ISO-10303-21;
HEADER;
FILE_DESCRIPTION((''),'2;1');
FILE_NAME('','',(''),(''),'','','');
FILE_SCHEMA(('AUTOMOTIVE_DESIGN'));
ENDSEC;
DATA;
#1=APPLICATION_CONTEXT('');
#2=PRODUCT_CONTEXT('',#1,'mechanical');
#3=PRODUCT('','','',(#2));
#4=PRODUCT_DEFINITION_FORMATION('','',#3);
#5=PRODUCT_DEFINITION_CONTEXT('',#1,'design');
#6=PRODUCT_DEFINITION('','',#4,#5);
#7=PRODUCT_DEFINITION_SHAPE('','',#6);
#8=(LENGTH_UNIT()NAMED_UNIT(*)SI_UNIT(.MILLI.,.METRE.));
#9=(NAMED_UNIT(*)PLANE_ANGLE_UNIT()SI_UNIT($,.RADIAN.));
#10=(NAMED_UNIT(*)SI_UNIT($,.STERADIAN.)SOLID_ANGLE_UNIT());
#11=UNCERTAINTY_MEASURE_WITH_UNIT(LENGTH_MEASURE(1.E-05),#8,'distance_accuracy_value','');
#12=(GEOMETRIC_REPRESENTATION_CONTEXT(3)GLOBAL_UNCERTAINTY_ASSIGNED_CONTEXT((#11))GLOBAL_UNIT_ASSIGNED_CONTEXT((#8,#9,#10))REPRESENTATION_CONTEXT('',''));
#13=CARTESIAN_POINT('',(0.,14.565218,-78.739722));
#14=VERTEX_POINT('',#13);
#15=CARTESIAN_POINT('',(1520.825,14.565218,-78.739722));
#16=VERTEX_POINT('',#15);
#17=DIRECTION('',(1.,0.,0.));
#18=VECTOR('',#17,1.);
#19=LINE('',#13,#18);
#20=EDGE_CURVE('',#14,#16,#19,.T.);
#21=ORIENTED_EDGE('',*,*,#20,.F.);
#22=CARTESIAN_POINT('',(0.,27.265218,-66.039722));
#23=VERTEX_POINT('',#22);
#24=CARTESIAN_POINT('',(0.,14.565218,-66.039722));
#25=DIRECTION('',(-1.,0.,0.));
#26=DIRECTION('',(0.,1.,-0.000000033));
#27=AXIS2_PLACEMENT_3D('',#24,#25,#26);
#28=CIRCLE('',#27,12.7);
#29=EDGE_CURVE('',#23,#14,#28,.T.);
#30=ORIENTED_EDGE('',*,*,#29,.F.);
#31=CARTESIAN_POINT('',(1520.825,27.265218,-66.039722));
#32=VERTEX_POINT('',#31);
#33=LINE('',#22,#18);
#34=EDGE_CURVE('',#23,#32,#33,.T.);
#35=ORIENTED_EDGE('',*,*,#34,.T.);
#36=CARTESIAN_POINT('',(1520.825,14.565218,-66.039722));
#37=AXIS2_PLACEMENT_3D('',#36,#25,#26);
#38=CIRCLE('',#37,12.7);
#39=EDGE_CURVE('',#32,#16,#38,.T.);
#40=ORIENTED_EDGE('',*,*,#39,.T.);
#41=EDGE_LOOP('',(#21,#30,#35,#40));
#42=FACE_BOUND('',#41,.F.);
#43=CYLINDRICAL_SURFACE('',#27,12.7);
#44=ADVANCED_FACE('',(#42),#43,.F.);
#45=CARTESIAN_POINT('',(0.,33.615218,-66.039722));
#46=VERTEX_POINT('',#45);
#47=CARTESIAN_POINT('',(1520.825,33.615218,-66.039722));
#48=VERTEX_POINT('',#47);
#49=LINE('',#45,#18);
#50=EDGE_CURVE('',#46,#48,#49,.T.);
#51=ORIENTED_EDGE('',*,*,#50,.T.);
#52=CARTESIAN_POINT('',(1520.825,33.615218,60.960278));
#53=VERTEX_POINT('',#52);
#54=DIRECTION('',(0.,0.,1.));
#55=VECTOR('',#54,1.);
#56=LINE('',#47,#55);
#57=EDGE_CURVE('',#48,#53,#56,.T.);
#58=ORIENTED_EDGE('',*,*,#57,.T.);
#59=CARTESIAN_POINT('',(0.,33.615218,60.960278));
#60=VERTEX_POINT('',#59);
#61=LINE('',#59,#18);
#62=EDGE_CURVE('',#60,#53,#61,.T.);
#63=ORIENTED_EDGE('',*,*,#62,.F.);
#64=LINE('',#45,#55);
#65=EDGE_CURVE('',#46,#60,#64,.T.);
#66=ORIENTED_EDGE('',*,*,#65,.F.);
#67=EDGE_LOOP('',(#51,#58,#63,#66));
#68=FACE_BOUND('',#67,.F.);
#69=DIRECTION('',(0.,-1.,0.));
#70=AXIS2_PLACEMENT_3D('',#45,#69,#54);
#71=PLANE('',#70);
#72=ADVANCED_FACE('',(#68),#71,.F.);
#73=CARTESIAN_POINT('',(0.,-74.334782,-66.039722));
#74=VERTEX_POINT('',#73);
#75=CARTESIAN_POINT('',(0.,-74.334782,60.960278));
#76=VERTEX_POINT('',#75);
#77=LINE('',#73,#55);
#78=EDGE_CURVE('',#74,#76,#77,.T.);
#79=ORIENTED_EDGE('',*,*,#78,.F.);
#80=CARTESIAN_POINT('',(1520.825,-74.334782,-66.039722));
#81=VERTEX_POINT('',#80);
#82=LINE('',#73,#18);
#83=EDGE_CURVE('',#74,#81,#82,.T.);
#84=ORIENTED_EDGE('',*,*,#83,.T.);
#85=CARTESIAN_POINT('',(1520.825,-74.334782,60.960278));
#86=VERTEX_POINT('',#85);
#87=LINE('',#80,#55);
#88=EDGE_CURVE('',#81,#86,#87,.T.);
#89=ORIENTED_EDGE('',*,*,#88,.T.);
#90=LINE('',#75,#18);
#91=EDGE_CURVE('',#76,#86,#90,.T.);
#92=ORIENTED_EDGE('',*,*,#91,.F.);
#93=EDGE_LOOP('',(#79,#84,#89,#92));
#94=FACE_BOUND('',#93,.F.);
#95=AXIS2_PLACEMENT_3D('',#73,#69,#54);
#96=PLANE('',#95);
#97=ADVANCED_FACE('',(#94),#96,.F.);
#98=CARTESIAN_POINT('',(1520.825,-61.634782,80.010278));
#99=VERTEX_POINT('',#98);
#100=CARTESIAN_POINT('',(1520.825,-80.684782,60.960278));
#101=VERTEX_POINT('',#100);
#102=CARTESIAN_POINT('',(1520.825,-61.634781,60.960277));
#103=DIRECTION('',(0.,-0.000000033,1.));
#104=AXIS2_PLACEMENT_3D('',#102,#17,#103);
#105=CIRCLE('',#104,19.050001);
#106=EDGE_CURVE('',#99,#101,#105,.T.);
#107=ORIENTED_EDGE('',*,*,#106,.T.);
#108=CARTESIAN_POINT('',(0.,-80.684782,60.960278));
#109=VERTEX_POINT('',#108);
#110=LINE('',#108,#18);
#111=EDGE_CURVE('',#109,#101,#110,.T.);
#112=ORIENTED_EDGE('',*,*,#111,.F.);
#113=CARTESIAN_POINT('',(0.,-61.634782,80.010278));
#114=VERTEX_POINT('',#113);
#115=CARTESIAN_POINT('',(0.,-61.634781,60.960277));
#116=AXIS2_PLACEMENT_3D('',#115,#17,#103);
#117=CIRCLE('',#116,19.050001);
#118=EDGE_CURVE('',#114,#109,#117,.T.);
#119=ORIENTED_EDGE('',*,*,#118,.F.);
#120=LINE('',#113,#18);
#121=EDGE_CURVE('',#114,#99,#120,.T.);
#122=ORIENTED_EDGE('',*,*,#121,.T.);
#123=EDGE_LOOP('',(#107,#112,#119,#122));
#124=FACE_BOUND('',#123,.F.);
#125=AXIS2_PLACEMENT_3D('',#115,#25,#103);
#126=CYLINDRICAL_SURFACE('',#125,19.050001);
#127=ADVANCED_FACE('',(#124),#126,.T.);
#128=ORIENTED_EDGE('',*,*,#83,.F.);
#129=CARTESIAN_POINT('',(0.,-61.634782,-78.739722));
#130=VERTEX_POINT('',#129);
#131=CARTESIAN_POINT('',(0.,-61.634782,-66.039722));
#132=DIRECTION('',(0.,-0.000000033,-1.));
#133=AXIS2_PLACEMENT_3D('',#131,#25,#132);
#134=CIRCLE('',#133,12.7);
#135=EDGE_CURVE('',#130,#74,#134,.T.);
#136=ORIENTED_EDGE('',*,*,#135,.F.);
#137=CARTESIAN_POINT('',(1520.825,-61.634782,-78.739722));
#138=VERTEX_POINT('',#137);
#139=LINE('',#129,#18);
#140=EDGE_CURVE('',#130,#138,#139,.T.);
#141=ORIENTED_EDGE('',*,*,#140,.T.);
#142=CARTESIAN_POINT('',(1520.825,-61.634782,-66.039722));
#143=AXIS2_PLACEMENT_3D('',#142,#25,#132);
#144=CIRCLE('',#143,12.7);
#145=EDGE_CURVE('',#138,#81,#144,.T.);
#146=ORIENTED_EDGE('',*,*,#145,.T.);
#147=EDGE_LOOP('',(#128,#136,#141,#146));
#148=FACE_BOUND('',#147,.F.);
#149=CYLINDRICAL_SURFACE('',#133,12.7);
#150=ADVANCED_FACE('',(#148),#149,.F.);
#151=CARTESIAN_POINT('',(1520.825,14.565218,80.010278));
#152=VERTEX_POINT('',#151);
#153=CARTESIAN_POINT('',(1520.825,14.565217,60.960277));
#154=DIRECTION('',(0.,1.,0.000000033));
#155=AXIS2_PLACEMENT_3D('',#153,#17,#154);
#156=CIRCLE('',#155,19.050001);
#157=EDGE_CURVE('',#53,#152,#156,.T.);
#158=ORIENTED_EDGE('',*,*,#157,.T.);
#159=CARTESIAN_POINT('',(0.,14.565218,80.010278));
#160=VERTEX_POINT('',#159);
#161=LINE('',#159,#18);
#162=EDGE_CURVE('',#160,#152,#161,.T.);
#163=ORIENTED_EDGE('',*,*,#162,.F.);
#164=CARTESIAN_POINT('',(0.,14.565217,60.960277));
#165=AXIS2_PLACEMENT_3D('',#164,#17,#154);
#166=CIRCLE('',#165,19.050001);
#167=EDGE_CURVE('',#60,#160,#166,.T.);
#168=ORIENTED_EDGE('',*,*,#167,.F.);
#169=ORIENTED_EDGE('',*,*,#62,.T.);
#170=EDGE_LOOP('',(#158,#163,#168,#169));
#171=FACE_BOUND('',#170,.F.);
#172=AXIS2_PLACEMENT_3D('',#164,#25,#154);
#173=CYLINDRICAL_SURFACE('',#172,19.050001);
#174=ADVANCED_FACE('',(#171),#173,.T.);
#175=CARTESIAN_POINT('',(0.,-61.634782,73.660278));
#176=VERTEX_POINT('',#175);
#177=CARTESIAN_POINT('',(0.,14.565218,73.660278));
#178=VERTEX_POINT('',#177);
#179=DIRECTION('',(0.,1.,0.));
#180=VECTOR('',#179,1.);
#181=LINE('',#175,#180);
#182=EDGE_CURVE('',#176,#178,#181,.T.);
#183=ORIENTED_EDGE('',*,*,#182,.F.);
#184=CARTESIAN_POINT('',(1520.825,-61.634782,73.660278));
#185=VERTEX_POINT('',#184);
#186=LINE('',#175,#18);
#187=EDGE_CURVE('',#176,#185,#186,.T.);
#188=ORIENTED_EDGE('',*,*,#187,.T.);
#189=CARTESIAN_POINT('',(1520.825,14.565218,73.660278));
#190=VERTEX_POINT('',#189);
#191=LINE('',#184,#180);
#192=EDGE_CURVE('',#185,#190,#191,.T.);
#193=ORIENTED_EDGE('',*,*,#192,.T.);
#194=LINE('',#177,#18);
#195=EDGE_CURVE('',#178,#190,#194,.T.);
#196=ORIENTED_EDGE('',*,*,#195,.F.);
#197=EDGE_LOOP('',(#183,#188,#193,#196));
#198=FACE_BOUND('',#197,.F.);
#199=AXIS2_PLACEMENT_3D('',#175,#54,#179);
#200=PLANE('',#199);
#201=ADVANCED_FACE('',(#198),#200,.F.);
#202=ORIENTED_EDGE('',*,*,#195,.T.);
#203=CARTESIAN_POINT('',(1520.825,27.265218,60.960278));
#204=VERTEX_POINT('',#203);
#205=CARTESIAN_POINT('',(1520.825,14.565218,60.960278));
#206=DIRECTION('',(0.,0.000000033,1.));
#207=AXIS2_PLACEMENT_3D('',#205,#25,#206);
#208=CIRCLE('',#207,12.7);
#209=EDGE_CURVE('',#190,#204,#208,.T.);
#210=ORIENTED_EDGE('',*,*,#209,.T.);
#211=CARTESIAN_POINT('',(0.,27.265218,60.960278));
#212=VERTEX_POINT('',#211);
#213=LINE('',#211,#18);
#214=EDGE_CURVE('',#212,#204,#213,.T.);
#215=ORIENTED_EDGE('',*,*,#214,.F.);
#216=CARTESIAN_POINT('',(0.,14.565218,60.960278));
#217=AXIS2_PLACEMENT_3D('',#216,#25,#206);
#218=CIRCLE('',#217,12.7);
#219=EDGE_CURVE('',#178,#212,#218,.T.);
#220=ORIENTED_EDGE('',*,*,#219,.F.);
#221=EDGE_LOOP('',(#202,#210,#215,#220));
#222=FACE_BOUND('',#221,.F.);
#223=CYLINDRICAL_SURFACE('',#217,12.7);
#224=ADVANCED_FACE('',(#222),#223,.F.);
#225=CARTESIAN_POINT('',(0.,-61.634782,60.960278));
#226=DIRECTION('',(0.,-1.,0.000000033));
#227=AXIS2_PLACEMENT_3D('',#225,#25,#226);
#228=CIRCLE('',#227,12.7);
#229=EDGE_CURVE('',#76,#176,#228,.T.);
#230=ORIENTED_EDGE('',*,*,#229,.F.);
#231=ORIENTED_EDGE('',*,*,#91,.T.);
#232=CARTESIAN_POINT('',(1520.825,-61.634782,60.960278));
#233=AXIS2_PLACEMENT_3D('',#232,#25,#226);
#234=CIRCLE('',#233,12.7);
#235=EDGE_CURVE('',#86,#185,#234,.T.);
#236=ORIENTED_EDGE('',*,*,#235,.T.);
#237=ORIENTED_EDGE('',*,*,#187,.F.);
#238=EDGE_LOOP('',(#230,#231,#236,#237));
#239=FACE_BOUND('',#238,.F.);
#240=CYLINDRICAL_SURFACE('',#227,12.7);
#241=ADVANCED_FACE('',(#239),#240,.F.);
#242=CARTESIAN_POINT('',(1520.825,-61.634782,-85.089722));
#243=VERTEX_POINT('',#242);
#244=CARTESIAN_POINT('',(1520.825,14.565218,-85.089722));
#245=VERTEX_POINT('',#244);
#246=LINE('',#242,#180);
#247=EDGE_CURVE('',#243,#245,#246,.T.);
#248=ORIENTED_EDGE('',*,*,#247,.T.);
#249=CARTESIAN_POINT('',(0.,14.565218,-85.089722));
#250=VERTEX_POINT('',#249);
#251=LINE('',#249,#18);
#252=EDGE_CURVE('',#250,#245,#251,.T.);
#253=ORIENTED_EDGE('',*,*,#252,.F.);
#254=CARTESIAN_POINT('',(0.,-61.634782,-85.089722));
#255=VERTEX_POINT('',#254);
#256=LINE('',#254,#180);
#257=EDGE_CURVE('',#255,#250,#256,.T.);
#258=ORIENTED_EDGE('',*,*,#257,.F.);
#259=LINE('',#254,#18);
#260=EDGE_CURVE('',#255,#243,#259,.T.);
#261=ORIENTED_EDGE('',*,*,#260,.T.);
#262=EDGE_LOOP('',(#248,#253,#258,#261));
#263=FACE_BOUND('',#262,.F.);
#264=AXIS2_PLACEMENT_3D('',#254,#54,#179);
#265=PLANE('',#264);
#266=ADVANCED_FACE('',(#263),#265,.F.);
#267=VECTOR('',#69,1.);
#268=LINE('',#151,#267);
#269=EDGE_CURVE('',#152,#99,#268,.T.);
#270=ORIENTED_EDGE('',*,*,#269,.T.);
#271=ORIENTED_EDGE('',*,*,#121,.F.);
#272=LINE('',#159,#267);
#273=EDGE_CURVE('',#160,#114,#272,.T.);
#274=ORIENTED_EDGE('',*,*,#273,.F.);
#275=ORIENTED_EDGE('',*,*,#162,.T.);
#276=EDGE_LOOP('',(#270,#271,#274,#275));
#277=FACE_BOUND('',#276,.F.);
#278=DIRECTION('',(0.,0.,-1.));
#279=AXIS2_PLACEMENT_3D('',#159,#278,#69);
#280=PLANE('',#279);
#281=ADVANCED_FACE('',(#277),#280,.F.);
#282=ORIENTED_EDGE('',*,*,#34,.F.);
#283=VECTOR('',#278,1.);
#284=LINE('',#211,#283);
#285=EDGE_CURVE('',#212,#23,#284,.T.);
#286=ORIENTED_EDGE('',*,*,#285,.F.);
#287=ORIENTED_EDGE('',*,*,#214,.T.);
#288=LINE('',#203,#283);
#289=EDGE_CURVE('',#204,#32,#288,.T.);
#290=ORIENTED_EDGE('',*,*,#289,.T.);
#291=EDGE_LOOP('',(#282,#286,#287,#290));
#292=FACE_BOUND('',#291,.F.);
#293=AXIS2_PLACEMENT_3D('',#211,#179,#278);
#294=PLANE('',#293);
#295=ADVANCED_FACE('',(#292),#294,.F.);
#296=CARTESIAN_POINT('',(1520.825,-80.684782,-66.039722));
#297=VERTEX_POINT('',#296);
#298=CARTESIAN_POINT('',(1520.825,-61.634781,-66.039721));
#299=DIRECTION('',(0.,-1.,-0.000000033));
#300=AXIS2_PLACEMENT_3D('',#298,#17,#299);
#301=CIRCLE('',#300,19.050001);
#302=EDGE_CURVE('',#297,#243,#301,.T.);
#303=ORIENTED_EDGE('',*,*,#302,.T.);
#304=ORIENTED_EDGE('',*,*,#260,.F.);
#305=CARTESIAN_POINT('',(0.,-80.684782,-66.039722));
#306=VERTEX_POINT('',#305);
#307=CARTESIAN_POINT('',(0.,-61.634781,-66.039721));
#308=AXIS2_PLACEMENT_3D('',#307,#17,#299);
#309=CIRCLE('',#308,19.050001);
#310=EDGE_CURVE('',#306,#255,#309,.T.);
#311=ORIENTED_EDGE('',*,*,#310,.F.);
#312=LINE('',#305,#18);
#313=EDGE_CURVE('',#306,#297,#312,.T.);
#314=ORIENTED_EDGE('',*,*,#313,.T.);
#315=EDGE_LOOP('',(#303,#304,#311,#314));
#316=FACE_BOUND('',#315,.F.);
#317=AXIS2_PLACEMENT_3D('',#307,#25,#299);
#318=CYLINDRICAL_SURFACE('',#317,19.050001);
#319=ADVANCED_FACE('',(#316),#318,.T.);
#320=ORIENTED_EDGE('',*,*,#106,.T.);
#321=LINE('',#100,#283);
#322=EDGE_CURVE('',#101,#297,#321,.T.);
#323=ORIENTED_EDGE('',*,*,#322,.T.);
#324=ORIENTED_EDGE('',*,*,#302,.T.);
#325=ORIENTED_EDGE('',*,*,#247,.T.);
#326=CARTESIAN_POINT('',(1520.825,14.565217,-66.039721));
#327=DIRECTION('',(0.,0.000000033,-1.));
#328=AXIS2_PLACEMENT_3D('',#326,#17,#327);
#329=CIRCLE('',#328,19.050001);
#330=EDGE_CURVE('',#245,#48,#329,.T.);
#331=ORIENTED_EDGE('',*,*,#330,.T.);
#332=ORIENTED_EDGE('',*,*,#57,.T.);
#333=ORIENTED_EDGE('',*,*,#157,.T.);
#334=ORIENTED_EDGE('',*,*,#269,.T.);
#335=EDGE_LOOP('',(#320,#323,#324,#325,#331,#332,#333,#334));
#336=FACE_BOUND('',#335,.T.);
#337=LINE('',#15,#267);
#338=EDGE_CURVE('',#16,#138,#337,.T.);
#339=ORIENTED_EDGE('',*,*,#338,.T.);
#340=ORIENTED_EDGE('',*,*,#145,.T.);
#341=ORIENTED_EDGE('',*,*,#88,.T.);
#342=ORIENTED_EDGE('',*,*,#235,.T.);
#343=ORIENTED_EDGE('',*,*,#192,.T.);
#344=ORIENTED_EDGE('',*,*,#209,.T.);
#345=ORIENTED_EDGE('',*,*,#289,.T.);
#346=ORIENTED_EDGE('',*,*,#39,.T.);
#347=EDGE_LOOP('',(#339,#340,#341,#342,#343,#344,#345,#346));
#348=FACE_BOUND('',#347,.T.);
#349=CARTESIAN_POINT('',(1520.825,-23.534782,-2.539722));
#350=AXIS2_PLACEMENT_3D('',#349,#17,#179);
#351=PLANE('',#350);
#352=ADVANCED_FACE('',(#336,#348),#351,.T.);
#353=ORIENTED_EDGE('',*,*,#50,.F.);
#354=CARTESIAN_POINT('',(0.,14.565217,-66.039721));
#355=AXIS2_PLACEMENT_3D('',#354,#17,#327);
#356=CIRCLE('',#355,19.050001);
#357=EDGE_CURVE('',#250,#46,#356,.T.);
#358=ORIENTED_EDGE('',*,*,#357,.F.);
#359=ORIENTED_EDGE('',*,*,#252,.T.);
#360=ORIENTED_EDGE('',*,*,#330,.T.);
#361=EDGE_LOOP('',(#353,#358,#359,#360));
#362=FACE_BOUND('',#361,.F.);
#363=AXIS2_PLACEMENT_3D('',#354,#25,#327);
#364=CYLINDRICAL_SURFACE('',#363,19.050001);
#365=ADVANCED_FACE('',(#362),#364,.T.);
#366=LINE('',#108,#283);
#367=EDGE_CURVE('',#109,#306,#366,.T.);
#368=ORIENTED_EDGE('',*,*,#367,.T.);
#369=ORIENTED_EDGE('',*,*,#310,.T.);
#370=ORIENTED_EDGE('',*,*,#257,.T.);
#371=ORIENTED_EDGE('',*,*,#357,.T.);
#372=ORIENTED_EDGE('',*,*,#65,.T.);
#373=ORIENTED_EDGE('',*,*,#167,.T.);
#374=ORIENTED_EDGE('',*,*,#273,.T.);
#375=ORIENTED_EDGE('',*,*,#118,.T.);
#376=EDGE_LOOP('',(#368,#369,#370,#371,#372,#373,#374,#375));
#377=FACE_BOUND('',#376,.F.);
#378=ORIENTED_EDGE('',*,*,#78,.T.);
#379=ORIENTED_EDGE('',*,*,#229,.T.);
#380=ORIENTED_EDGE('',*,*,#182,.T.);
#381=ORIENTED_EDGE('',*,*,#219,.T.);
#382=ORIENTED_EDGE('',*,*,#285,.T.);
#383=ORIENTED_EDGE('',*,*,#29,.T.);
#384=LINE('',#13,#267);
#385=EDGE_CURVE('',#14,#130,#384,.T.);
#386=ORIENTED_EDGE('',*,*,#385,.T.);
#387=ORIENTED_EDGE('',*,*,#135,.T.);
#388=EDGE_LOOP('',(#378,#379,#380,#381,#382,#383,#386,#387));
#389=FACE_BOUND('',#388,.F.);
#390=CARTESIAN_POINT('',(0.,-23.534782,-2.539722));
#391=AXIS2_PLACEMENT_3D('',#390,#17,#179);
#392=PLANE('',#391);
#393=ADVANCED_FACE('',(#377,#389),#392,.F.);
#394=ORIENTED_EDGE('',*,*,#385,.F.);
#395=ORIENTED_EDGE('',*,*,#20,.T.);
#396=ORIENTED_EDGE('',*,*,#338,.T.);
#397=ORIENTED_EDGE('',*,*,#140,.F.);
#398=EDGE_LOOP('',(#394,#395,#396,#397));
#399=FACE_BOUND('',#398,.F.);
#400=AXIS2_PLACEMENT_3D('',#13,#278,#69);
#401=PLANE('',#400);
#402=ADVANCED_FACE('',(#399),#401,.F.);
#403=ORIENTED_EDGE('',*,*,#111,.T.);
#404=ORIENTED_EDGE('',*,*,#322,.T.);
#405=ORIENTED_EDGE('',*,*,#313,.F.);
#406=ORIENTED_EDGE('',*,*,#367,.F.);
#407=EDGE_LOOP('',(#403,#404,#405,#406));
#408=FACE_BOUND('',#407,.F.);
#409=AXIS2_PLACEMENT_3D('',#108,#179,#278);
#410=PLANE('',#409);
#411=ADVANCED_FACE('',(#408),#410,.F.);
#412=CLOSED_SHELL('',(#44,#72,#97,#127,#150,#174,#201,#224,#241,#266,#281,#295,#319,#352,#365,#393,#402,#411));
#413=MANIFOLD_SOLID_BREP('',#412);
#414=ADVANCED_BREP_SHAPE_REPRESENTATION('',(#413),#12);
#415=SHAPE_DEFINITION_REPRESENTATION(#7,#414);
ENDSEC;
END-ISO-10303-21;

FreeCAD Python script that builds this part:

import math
import FreeCAD as App
import Part
import Sketcher

V = App.Vector
Q = App.Units.Quantity

doc = App.newDocument("Part")
body = doc.addObject("PartDesign::Body", "Body")

# Sketch on YZ plane
sketch1 = body.newObject("Sketcher::SketchObject", "Sketch")
sketch1.AttachmentSupport = (doc.getObject("YZ_Plane"), [""])
sketch1.MapMode = "FlatFace"
sketch1.addGeometry(Part.ArcOfCircle(Part.Circle(V(15, -66, 0), V(0, 0, 1), 19), math.radians(-90), math.radians(0)), False)
sketch1.addGeometry(Part.LineSegment(V(34, -66, 0), V(34, 61, 0)), False)
sketch1.addGeometry(Part.ArcOfCircle(Part.Circle(V(15, 61, 0), V(0, 0, 1), 19), math.radians(0), math.radians(90)), False)
sketch1.addGeometry(Part.LineSegment(V(15, 80, 0), V(-62, 80, 0)), False)
sketch1.addGeometry(Part.ArcOfCircle(Part.Circle(V(-62, 61, 0), V(0, 0, 1), 19), math.radians(90), math.radians(180)), False)
sketch1.addGeometry(Part.LineSegment(V(-81, 61, 0), V(-81, -66, 0)), False)
sketch1.addGeometry(Part.ArcOfCircle(Part.Circle(V(-62, -66, 0), V(0, 0, 1), 19), math.radians(-180), math.radians(-90)), False)
sketch1.addGeometry(Part.LineSegment(V(-62, -85, 0), V(15, -85, 0)), False)
sketch1.addGeometry(Part.LineSegment(V(27, 61, 0), V(27, -66, 0)), False)
sketch1.addGeometry(Part.ArcOfCircle(Part.Circle(V(15, -66, 0), V(0, 0, 1), 13), math.radians(-90), math.radians(0)), False)
sketch1.addGeometry(Part.LineSegment(V(15, -79, 0), V(-62, -79, 0)), False)
sketch1.addGeometry(Part.ArcOfCircle(Part.Circle(V(-62, -66, 0), V(0, 0, 1), 13), math.radians(-180), math.radians(-90)), False)
sketch1.addGeometry(Part.LineSegment(V(-74, -66, 0), V(-74, 61, 0)), False)
sketch1.addGeometry(Part.ArcOfCircle(Part.Circle(V(-62, 61, 0), V(0, 0, 1), 13), math.radians(90), math.radians(180)), False)
sketch1.addGeometry(Part.LineSegment(V(-62, 74, 0), V(15, 74, 0)), False)
sketch1.addGeometry(Part.ArcOfCircle(Part.Circle(V(15, 61, 0), V(0, 0, 1), 13), math.radians(0), math.radians(90)), False)
sketch1.addConstraint(Sketcher.Constraint("Tangent", 0, 2, 1, 1))
sketch1.addConstraint(Sketcher.Constraint("Tangent", 1, 2, 2, 1))
sketch1.addConstraint(Sketcher.Constraint("Tangent", 2, 2, 3, 1))
sketch1.addConstraint(Sketcher.Constraint("Tangent", 3, 2, 4, 1))
sketch1.addConstraint(Sketcher.Constraint("Tangent", 4, 2, 5, 1))
sketch1.addConstraint(Sketcher.Constraint("Tangent", 5, 2, 6, 1))
sketch1.addConstraint(Sketcher.Constraint("Tangent", 6, 2, 7, 1))
sketch1.addConstraint(Sketcher.Constraint("Tangent", 7, 2, 0, 1))
sketch1.addConstraint(Sketcher.Constraint("Tangent", 8, 2, 9, 2))
sketch1.addConstraint(Sketcher.Constraint("Tangent", 9, 1, 10, 1))
sketch1.addConstraint(Sketcher.Constraint("Tangent", 10, 2, 11, 2))
sketch1.addConstraint(Sketcher.Constraint("Tangent", 11, 1, 12, 1))
sketch1.addConstraint(Sketcher.Constraint("Tangent", 12, 2, 13, 2))
sketch1.addConstraint(Sketcher.Constraint("Tangent", 13, 1, 14, 1))
sketch1.addConstraint(Sketcher.Constraint("Tangent", 14, 2, 15, 2))
sketch1.addConstraint(Sketcher.Constraint("Tangent", 15, 1, 8, 1))
sketch1.addConstraint(Sketcher.Constraint("Vertical", 1))
sketch1.addConstraint(Sketcher.Constraint("Horizontal", 3))
sketch1.addConstraint(Sketcher.Constraint("Vertical", 5))
sketch1.addConstraint(Sketcher.Constraint("Horizontal", 7))
sketch1.addConstraint(Sketcher.Constraint("Vertical", 8))
sketch1.addConstraint(Sketcher.Constraint("Horizontal", 10))
sketch1.addConstraint(Sketcher.Constraint("Vertical", 12))
sketch1.addConstraint(Sketcher.Constraint("Horizontal", 14))
sketch1.addConstraint(Sketcher.Constraint("Coincident", 9, 3, 0, 3))
sketch1.addConstraint(Sketcher.Constraint("Coincident", 11, 3, 6, 3))
sketch1.addConstraint(Sketcher.Constraint("Coincident", 13, 3, 4, 3))
sketch1.addConstraint(Sketcher.Constraint("Equal", 0, 2))
sketch1.addConstraint(Sketcher.Constraint("Equal", 2, 4))
sketch1.addConstraint(Sketcher.Constraint("Equal", 4, 6))
sketch1.addConstraint(Sketcher.Constraint("Equal", 13, 15))
sketch1.addConstraint(Sketcher.Constraint("Radius", 9, Q("0.5 in")))
sketch1.addConstraint(Sketcher.Constraint("DistanceX", 3, 2, 3, 1, Q("3 in")))
sketch1.addConstraint(Sketcher.Constraint("DistanceY", 1, 1, 1, 2, Q("5 in")))
sketch1.addConstraint(Sketcher.Constraint("Radius", 0, Q("0.75 in")))
sketch1.addConstraint(Sketcher.Constraint("DistanceY", 0, 3, -1, 1, Q("66.039721 mm")))
sketch1.addConstraint(Sketcher.Constraint("DistanceX", 4, 3, -1, 1, Q("61.634781 mm")))
pad1 = body.newObject("PartDesign::Pad", "Pad")
pad1.Profile = sketch1
pad1.Length = Q("59.875 in")

doc.recompute()
